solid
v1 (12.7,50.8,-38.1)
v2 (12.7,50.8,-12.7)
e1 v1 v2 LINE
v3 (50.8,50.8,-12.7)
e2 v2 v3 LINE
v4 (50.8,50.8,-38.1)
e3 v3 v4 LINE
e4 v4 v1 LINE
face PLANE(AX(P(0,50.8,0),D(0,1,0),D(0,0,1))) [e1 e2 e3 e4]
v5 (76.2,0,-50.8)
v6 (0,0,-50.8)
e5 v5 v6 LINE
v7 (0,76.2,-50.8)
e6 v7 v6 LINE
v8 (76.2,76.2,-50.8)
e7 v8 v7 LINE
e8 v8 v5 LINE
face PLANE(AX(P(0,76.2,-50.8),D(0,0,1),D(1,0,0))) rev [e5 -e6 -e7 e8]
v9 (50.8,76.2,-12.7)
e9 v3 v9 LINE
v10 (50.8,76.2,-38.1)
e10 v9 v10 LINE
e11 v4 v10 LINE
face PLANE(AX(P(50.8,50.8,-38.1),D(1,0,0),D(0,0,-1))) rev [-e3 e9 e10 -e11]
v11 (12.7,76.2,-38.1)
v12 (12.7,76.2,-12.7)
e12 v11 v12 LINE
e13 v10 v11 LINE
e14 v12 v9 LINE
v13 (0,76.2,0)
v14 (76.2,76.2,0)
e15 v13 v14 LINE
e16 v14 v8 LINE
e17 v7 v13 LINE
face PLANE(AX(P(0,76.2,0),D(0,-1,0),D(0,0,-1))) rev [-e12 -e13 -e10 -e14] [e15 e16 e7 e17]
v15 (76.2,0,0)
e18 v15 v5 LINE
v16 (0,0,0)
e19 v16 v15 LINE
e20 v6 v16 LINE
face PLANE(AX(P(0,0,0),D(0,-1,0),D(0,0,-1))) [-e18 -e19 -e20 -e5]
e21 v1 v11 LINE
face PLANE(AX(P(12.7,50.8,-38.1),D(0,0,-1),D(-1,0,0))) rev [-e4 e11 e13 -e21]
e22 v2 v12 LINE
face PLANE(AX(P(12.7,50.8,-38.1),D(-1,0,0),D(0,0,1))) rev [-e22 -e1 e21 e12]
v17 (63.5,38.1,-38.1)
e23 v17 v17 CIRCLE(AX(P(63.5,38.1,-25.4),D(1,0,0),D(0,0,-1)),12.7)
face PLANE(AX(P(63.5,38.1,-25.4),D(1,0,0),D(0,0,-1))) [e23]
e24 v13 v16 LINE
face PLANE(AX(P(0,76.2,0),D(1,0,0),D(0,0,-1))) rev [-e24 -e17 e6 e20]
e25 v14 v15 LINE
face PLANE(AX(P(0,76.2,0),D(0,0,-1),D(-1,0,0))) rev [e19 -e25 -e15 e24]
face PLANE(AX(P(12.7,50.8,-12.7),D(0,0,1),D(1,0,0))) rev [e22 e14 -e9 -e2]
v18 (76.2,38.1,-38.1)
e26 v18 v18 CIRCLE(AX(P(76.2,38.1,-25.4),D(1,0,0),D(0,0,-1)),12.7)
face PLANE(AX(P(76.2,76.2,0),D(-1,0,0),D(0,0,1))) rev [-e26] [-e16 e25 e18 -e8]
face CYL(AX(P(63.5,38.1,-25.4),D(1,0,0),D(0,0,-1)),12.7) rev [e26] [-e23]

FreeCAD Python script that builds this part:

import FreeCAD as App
import Part
import Sketcher
from FreeCAD import Vector
Q = App.Units.Quantity

doc = App.newDocument("Part")
body = doc.addObject("PartDesign::Body", "Body")

# Sketch on XZ plane
sketch1 = body.newObject("Sketcher::SketchObject", "Sketch")
sketch1.AttachmentSupport = (doc.getObject("XZ_Plane"), [""])
sketch1.MapMode = "FlatFace"
sketch1.addGeometry([
    Part.LineSegment(Vector(0, -51, 0), Vector(0, 0, 0)),
    Part.LineSegment(Vector(0, 0, 0), Vector(76, 0, 0)),
    Part.LineSegment(Vector(76, 0, 0), Vector(76, -51, 0)),
    Part.LineSegment(Vector(76, -51, 0), Vector(0, -51, 0)),
], False)
sketch1.addConstraint([
    Sketcher.Constraint("Coincident", 0, 2, 1, 1),
    Sketcher.Constraint("Coincident", 1, 2, 2, 1),
    Sketcher.Constraint("Coincident", 2, 2, 3, 1),
    Sketcher.Constraint("Coincident", 3, 2, 0, 1),
    Sketcher.Constraint("Vertical", 0),
    Sketcher.Constraint("Horizontal", 1),
    Sketcher.Constraint("Vertical", 2),
    Sketcher.Constraint("Horizontal", 3),
    Sketcher.Constraint("Coincident", 0, 2, -1, 1),
    Sketcher.Constraint("DistanceX", 1, 1, 1, 2, Q("3 in")),
    Sketcher.Constraint("DistanceY", 0, 1, 0, 2, Q("2 in")),
])
pad1 = body.newObject("PartDesign::Pad", "Pad")
pad1.Profile = sketch1
pad1.Length = Q("3 in")
pad1.Reversed = True

# Sketch on XZ plane
sketch2 = body.newObject("Sketcher::SketchObject", "Sketch001")
sketch2.AttachmentSupport = (doc.getObject("XZ_Plane"), [""])
sketch2.MapMode = "FlatFace"
sketch2.AttachmentOffset = App.Placement(Vector(0, 0, -3 * 25.4), App.Rotation())
sketch2.addGeometry([
    Part.LineSegment(Vector(13, -38, 0), Vector(13, -13, 0)),
    Part.LineSegment(Vector(13, -13, 0), Vector(51, -13, 0)),
    Part.LineSegment(Vector(51, -13, 0), Vector(51, -38, 0)),
    Part.LineSegment(Vector(51, -38, 0), Vector(13, -38, 0)),
], False)
sketch2.addConstraint([
    Sketcher.Constraint("Coincident", 0, 2, 1, 1),
    Sketcher.Constraint("Coincident", 1, 2, 2, 1),
    Sketcher.Constraint("Coincident", 2, 2, 3, 1),
    Sketcher.Constraint("Coincident", 3, 2, 0, 1),
    Sketcher.Constraint("Vertical", 0),
    Sketcher.Constraint("Horizontal", 1),
    Sketcher.Constraint("Vertical", 2),
    Sketcher.Constraint("Horizontal", 3),
    Sketcher.Constraint("DistanceY", 0, 1, 0, 2, Q("1 in")),
    Sketcher.Constraint("DistanceX", 1, 1, 1, 2, Q("1.5 in")),
    Sketcher.Constraint("DistanceX", -1, 1, 1, 2, Q("2 in")),
    Sketcher.Constraint("DistanceY", 0, 2, -1, 1, Q("0.5 in")),
])
pocket1 = body.newObject("PartDesign::Pocket", "Pocket")
pocket1.Profile = sketch2
pocket1.Length = Q("1 in")
pocket1.Reversed = True

# Sketch on YZ plane
sketch3 = body.newObject("Sketcher::SketchObject", "Sketch002")
sketch3.AttachmentSupport = (doc.getObject("YZ_Plane"), [""])
sketch3.MapMode = "FlatFace"
sketch3.AttachmentOffset = App.Placement(Vector(0, 0, 3 * 25.4), App.Rotation())
sketch3.addGeometry(Part.Circle(Vector(38, -25, 0), Vector(0, 0, 1), 13), False)
sketch3.addConstraint([
    Sketcher.Constraint("Diameter", 0, Q("1 in")),
    Sketcher.Constraint("DistanceY", 0, 3, -1, 1, Q("1 in")),
    Sketcher.Constraint("DistanceX", -1, 1, 0, 3, Q("1.5 in")),
])
pocket2 = body.newObject("PartDesign::Pocket", "Pocket001")
pocket2.Profile = sketch3
pocket2.Length = Q("0.5 in")

doc.recompute()
